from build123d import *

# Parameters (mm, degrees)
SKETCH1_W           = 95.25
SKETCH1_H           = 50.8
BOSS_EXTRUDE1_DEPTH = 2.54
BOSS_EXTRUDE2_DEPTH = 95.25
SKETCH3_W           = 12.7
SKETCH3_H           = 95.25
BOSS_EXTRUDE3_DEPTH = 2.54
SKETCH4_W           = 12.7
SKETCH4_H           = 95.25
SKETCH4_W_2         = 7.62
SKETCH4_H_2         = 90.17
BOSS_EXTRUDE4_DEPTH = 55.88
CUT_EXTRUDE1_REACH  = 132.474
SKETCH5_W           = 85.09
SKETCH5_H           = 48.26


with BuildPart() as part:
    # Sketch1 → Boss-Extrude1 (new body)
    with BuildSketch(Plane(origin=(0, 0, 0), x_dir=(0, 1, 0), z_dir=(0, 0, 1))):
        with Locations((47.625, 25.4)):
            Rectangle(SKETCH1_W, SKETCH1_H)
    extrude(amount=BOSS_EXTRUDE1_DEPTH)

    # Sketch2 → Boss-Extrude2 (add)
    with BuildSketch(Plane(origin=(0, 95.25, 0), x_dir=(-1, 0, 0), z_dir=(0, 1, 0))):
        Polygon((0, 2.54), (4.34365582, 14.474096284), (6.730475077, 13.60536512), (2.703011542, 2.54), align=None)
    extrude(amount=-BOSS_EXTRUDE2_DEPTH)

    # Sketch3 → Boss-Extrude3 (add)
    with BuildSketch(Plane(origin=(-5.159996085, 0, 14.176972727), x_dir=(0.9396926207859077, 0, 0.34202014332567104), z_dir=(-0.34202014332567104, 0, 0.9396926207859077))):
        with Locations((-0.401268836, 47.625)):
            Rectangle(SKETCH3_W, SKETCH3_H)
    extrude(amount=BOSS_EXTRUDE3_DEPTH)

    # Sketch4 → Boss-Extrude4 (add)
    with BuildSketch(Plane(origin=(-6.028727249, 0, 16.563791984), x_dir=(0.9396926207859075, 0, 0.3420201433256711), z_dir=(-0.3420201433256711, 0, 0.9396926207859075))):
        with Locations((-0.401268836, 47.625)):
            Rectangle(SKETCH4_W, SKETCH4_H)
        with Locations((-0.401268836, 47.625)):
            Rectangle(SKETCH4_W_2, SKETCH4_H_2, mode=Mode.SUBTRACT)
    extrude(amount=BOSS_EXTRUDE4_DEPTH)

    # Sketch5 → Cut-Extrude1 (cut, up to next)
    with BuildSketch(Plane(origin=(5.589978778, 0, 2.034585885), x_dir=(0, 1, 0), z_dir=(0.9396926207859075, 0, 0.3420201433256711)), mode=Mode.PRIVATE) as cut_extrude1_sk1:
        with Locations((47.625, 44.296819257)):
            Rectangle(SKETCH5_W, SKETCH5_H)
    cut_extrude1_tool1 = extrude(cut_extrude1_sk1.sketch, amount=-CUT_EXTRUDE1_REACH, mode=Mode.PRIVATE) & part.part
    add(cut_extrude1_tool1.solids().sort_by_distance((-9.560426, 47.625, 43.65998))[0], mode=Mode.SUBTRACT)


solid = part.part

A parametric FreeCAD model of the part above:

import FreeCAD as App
import Part
import Sketcher

V = App.Vector
Q = App.Units.Quantity


def add_polygon(sketch, points):
    """Adds a closed chain of lines whose ends are joined by coincident constraints."""
    first, n = sketch.GeometryCount, len(points)
    for a, b in zip(points, points[1:] + points[:1]):
        sketch.addGeometry(Part.LineSegment(App.Vector(*a, 0), App.Vector(*b, 0)), False)
    for i in range(n):
        sketch.addConstraint(Sketcher.Constraint("Coincident", first + i, 2, first + (i + 1) % n, 1))

doc = App.newDocument("Part")
body = doc.addObject("PartDesign::Body", "Body")

sketch1 = body.newObject("Sketcher::SketchObject", "Sketch")
sketch1.AttachmentSupport = (doc.getObject("XY_Plane"), [""])
sketch1.MapMode = "FlatFace"
add_polygon(sketch1, [(-51, 0), (0, 0), (0, 95), (-51, 95)])
sketch1.addConstraint(Sketcher.Constraint("Horizontal", 0))
sketch1.addConstraint(Sketcher.Constraint("Vertical", 1))
sketch1.addConstraint(Sketcher.Constraint("Horizontal", 2))
sketch1.addConstraint(Sketcher.Constraint("Vertical", 3))
sketch1.addConstraint(Sketcher.Constraint("Coincident", 0, 2, -1, 1))
sketch1.addConstraint(Sketcher.Constraint("DistanceX", 0, 1, 0, 2, Q("2 in")))
sketch1.addConstraint(Sketcher.Constraint("DistanceY", 1, 1, 1, 2, Q("3.75 in")))
pad1 = body.newObject("PartDesign::Pad", "Pad")
pad1.Profile = sketch1
pad1.Length = Q("0.1 in")

sketch2 = body.newObject("Sketcher::SketchObject", "Sketch001")
sketch2.AttachmentSupport = (doc.getObject("XZ_Plane"), [""])
sketch2.MapMode = "FlatFace"
sketch2.AttachmentOffset = App.Placement(V(0, 0, -3.75 * 25.4), App.Rotation())
add_polygon(sketch2, [(-4.3, 14.5), (0, 2.5), (-2.7, 2.5), (-6.7, 13.6)])
sketch2.addConstraint(Sketcher.Constraint("Horizontal", 1))
sketch2.addConstraint(Sketcher.Constraint("PointOnObject", 0, 2, -2))
sketch2.addConstraint(Sketcher.Constraint("Parallel", 0, 2))
sketch2.addConstraint(Sketcher.Constraint("Perpendicular", 2, 3))
sketch2.addConstraint(Sketcher.Constraint("Angle", 0, Q("-70 deg")))
sketch2.addConstraint(Sketcher.Constraint("Distance", 0, Q("0.5 in")))
sketch2.addConstraint(Sketcher.Constraint("Distance", 3, Q("0.1 in")))
sketch2.addConstraint(Sketcher.Constraint("DistanceY", -1, 1, 0, 2, Q("0.1 in")))
pad2 = body.newObject("PartDesign::Pad", "Pad001")
pad2.Profile = sketch2
pad2.Length = Q("3.75 in")

sketch3 = body.newObject("Sketcher::SketchObject", "Sketch002")
sketch3.Placement = App.Placement(V(-5.159996, 0, 14.176973), App.Rotation(V(0.939692621, 0, 0.342020143), V(0, 1, 0), V(-0.342020143, 0, 0.939692621), "ZXY"))
add_polygon(sketch3, [(-7, 95), (-7, 0), (6, 0), (6, 95)])
sketch3.addConstraint(Sketcher.Constraint("Vertical", 0))
sketch3.addConstraint(Sketcher.Constraint("Horizontal", 1))
sketch3.addConstraint(Sketcher.Constraint("Vertical", 2))
sketch3.addConstraint(Sketcher.Constraint("Horizontal", 3))
sketch3.addConstraint(Sketcher.Constraint("PointOnObject", 0, 2, -1))
sketch3.addConstraint(Sketcher.Constraint("DistanceX", 1, 1, 1, 2, Q("0.5 in")))
sketch3.addConstraint(Sketcher.Constraint("DistanceY", 0, 2, 0, 1, Q("3.75 in")))
sketch3.addConstraint(Sketcher.Constraint("DistanceX", 0, 2, -1, 1, 6.751269))
pad3 = body.newObject("PartDesign::Pad", "Pad002")
pad3.Profile = sketch3
pad3.Length = Q("0.1 in")

sketch4 = body.newObject("Sketcher::SketchObject", "Sketch003")
sketch4.Placement = App.Placement(V(-6.028727, 0, 16.563792), App.Rotation(V(0.939692621, 0, 0.342020143), V(0, 1, 0), V(-0.342020143, 0, 0.939692621), "ZXY"))
add_polygon(sketch4, [(-7, 95), (-7, 0), (6, 0), (6, 95)])
add_polygon(sketch4, [(3, 3), (-4, 3), (-4, 93), (3, 93)])
sketch4.addConstraint(Sketcher.Constraint("Vertical", 0))
sketch4.addConstraint(Sketcher.Constraint("Horizontal", 1))
sketch4.addConstraint(Sketcher.Constraint("Vertical", 2))
sketch4.addConstraint(Sketcher.Constraint("Horizontal", 3))
sketch4.addConstraint(Sketcher.Constraint("Horizontal", 4))
sketch4.addConstraint(Sketcher.Constraint("Vertical", 5))
sketch4.addConstraint(Sketcher.Constraint("Horizontal", 6))
sketch4.addConstraint(Sketcher.Constraint("Vertical", 7))
sketch4.addConstraint(Sketcher.Constraint("PointOnObject", 0, 2, -1))
sketch4.addConstraint(Sketcher.Constraint("DistanceX", 1, 1, 1, 2, Q("0.5 in")))
sketch4.addConstraint(Sketcher.Constraint("DistanceX", 4, 2, 4, 1, Q("0.3 in")))
sketch4.addConstraint(Sketcher.Constraint("DistanceY", 0, 2, 0, 1, Q("3.75 in")))
sketch4.addConstraint(Sketcher.Constraint("DistanceY", 5, 1, 5, 2, Q("3.55 in")))
sketch4.addConstraint(Sketcher.Constraint("DistanceY", -1, 1, 4, 2, Q("0.1 in")))
sketch4.addConstraint(Sketcher.Constraint("DistanceX", 0, 2, 4, 2, Q("0.1 in")))
sketch4.addConstraint(Sketcher.Constraint("DistanceX", 0, 2, -1, 1, 6.751269))
pad4 = body.newObject("PartDesign::Pad", "Pad003")
pad4.Profile = sketch4
pad4.Length = Q("2.2 in")

sketch5 = body.newObject("Sketcher::SketchObject", "Sketch004")
sketch5.Placement = App.Placement(V(5.589979, 0, 2.034586), App.Rotation(V(0, 1, 0), V(-0.342020143, 0, 0.939692621), V(0.939692621, 0, 0.342020143), "ZXY"))
add_polygon(sketch5, [(5, 68), (5, 20), (90, 20), (90, 68)])
sketch5.addConstraint(Sketcher.Constraint("Vertical", 0))
sketch5.addConstraint(Sketcher.Constraint("Horizontal", 1))
sketch5.addConstraint(Sketcher.Constraint("Vertical", 2))
sketch5.addConstraint(Sketcher.Constraint("Horizontal", 3))
sketch5.addConstraint(Sketcher.Constraint("DistanceY", 0, 2, 0, 1, Q("1.9 in")))
sketch5.addConstraint(Sketcher.Constraint("DistanceX", 1, 1, 1, 2, Q("3.35 in")))
sketch5.addConstraint(Sketcher.Constraint("DistanceX", -1, 1, 0, 2, Q("0.2 in")))
sketch5.addConstraint(Sketcher.Constraint("DistanceY", -1, 1, 0, 2, 20.166819))
pocket1 = body.newObject("PartDesign::Pocket", "Pocket")
pocket1.Profile = sketch5
pocket1.Type = "UpToFirst"

doc.recompute()
